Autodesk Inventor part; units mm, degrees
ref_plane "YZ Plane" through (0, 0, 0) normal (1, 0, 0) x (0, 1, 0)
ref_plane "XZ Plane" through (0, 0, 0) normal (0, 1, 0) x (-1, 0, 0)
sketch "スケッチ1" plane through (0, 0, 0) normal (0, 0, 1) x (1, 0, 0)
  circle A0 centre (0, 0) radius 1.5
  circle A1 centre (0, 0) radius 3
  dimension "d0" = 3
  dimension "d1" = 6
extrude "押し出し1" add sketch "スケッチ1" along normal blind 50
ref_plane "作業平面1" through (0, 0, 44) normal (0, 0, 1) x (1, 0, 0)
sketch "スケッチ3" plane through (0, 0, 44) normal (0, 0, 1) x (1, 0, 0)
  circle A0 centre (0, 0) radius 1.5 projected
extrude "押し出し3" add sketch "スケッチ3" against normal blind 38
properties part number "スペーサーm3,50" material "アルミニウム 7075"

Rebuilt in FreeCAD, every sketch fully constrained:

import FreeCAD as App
import Part
import Sketcher
Q = App.Units.Quantity

doc = App.newDocument("Part")
body = doc.addObject("PartDesign::Body", "Body")

# Sketch on XY plane
sketch1 = body.newObject("Sketcher::SketchObject", "Sketch")
sketch1.AttachmentSupport = (doc.getObject("XY_Plane"), [""])
sketch1.MapMode = "FlatFace"
sketch1.addGeometry(Part.Circle(App.Vector(0, 0, 0), App.Vector(0, 0, 1), 3), False)
sketch1.addGeometry(Part.Circle(App.Vector(0, 0, 0), App.Vector(0, 0, 1), 1.5), False)
sketch1.addConstraint(Sketcher.Constraint("Coincident", 0, 3, -1, 1))
sketch1.addConstraint(Sketcher.Constraint("Coincident", 1, 3, -1, 1))
sketch1.addConstraint(Sketcher.Constraint("Diameter", 0, Q("6 mm")))
sketch1.addConstraint(Sketcher.Constraint("Diameter", 1, Q("3 mm")))
pad1 = body.newObject("PartDesign::Pad", "Pad")
pad1.Profile = sketch1
pad1.Length = 50

# Sketch on XY plane
sketch2 = body.newObject("Sketcher::SketchObject", "Sketch001")
sketch2.AttachmentSupport = (doc.getObject("XY_Plane"), [""])
sketch2.MapMode = "FlatFace"
sketch2.AttachmentOffset = App.Placement(App.Vector(0, 0, 44), App.Rotation())
sketch2.addGeometry(Part.Circle(App.Vector(0, 0, 0), App.Vector(0, 0, 1), 1.5), False)
sketch2.addConstraint(Sketcher.Constraint("Coincident", 0, 3, -1, 1))
sketch2.addConstraint(Sketcher.Constraint("Diameter", 0, Q("3 mm")))
pad2 = body.newObject("PartDesign::Pad", "Pad001")
pad2.Profile = sketch2
pad2.Length = 38
pad2.Reversed = True

doc.recompute()
